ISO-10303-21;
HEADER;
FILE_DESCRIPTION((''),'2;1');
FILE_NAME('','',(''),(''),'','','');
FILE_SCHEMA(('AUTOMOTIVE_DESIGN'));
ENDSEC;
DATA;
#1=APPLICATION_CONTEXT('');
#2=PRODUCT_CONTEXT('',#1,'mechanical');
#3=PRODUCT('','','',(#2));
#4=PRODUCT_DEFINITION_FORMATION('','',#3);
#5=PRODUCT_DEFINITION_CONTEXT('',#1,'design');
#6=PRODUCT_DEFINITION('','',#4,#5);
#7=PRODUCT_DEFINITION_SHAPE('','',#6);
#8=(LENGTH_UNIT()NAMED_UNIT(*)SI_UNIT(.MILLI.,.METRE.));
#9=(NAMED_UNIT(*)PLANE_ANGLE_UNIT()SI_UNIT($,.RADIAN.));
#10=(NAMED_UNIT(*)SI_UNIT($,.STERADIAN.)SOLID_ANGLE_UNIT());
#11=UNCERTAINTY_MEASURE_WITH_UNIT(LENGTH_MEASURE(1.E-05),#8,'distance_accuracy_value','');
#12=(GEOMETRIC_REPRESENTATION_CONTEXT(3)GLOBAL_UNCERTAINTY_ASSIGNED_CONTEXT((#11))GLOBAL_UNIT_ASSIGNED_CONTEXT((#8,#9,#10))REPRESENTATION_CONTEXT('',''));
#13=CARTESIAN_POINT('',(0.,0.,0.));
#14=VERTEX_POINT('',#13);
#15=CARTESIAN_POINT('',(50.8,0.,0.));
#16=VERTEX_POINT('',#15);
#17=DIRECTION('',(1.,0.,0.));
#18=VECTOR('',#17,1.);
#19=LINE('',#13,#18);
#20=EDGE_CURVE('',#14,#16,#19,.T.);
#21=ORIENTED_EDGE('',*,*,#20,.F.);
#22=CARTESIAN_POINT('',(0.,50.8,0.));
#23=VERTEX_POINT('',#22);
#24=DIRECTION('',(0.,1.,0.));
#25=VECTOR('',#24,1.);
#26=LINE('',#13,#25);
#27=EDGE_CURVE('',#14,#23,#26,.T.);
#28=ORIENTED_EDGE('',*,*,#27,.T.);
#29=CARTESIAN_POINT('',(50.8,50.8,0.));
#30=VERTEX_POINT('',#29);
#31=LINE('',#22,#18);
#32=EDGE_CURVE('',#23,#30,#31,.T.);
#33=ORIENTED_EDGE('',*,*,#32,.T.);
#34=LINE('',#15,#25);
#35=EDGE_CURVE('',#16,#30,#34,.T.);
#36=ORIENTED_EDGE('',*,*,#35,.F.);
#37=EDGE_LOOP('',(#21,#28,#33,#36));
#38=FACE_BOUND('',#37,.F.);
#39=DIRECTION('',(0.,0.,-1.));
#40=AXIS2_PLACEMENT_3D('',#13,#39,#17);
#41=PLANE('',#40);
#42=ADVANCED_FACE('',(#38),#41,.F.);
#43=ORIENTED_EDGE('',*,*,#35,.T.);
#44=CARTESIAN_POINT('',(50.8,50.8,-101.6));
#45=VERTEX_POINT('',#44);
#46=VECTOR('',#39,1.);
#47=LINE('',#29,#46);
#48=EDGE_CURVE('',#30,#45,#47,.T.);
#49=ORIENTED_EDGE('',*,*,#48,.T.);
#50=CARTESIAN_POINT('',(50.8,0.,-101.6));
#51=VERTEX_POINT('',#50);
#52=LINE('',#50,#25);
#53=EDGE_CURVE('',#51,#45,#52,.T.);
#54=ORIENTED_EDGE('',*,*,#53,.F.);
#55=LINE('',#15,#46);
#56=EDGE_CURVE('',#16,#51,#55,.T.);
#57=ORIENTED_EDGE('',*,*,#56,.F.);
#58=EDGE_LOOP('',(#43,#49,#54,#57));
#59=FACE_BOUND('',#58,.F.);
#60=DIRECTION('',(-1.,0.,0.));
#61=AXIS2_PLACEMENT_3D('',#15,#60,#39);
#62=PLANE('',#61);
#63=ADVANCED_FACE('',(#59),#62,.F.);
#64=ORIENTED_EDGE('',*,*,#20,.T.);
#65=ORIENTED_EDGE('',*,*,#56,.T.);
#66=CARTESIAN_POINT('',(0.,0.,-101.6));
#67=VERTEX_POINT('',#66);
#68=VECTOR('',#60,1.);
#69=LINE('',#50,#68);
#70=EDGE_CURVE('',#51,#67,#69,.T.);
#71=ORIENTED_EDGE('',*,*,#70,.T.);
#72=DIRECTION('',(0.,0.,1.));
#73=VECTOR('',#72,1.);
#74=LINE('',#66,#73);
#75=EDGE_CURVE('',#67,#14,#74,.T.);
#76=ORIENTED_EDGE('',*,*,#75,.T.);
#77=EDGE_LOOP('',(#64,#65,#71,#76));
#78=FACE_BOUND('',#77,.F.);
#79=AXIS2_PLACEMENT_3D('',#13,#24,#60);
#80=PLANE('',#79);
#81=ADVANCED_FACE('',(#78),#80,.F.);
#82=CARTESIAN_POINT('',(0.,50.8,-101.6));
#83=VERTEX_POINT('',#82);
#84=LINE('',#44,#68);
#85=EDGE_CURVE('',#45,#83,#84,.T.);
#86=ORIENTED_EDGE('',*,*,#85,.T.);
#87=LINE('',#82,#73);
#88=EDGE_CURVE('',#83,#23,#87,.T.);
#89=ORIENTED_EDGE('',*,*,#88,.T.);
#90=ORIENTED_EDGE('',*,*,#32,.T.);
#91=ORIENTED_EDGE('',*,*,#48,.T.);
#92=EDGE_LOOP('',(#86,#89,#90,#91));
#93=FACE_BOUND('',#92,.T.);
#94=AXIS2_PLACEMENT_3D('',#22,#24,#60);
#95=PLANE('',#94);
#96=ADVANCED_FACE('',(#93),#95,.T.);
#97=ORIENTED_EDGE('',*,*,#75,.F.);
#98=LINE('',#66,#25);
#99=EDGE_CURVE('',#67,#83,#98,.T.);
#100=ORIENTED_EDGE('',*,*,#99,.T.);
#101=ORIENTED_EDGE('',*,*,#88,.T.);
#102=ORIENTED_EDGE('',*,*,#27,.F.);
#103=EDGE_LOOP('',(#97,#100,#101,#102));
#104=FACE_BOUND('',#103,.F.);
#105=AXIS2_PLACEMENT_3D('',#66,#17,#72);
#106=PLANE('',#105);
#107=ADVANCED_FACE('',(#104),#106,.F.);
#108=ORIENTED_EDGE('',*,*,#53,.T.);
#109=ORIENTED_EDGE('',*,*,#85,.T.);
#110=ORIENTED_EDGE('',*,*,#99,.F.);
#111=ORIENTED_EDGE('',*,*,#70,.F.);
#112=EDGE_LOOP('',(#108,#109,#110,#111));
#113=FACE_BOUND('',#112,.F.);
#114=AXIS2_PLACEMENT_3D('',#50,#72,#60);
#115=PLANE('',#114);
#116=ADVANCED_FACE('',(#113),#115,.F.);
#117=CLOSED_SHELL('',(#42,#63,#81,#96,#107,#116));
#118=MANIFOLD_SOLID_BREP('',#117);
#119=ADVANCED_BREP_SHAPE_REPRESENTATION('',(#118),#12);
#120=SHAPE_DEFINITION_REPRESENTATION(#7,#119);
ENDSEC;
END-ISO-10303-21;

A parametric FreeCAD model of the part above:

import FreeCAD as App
import Part
import Sketcher
Q = App.Units.Quantity


def add_polygon(sketch, points):
    """Adds a closed chain of lines whose ends are joined by coincident constraints."""
    first, n = sketch.GeometryCount, len(points)
    for a, b in zip(points, points[1:] + points[:1]):
        sketch.addGeometry(Part.LineSegment(App.Vector(*a, 0), App.Vector(*b, 0)), False)
    for i in range(n):
        sketch.addConstraint(Sketcher.Constraint("Coincident", first + i, 2, first + (i + 1) % n, 1))

doc = App.newDocument("Part")
params = doc.addObject("Spreadsheet::Sheet", "Params")
for row, (alias, value) in enumerate([
    ("sketch1_width", "2 in"),
    ("sketch1_height", "4 in"),
    ("pad1_length", "2 in"),
], start=1):
    params.set(f"A{row}", alias)
    params.set(f"B{row}", "=" + value)
    params.setAlias(f"B{row}", alias)

body = doc.addObject("PartDesign::Body", "Body")

# Sketch on XZ plane
sketch1 = body.newObject("Sketcher::SketchObject", "Sketch")
sketch1.AttachmentSupport = (doc.getObject("XZ_Plane"), [""])
sketch1.MapMode = "FlatFace"
add_polygon(sketch1, [(0, -102), (0, 0), (51, 0), (51, -102)])  # lines 0-3
sketch1.addConstraint(Sketcher.Constraint("Vertical", 0))
sketch1.addConstraint(Sketcher.Constraint("Horizontal", 1))
sketch1.addConstraint(Sketcher.Constraint("Vertical", 2))
sketch1.addConstraint(Sketcher.Constraint("Horizontal", 3))
sketch1.addConstraint(Sketcher.Constraint("Coincident", 0, 2, -1, 1))
sketch1.addConstraint(Sketcher.Constraint("DistanceX", 1, 1, 1, 2, Q("2 in")))
sketch1.addConstraint(Sketcher.Constraint("DistanceY", 0, 1, 0, 2, Q("4 in")))
sketch1.setExpression("Constraints[9]", "Params.sketch1_width")
sketch1.setExpression("Constraints[10]", "Params.sketch1_height")
pad1 = body.newObject("PartDesign::Pad", "Pad")
pad1.Profile = sketch1
pad1.setExpression("Length", "Params.pad1_length")
pad1.Reversed = True

doc.recompute()
